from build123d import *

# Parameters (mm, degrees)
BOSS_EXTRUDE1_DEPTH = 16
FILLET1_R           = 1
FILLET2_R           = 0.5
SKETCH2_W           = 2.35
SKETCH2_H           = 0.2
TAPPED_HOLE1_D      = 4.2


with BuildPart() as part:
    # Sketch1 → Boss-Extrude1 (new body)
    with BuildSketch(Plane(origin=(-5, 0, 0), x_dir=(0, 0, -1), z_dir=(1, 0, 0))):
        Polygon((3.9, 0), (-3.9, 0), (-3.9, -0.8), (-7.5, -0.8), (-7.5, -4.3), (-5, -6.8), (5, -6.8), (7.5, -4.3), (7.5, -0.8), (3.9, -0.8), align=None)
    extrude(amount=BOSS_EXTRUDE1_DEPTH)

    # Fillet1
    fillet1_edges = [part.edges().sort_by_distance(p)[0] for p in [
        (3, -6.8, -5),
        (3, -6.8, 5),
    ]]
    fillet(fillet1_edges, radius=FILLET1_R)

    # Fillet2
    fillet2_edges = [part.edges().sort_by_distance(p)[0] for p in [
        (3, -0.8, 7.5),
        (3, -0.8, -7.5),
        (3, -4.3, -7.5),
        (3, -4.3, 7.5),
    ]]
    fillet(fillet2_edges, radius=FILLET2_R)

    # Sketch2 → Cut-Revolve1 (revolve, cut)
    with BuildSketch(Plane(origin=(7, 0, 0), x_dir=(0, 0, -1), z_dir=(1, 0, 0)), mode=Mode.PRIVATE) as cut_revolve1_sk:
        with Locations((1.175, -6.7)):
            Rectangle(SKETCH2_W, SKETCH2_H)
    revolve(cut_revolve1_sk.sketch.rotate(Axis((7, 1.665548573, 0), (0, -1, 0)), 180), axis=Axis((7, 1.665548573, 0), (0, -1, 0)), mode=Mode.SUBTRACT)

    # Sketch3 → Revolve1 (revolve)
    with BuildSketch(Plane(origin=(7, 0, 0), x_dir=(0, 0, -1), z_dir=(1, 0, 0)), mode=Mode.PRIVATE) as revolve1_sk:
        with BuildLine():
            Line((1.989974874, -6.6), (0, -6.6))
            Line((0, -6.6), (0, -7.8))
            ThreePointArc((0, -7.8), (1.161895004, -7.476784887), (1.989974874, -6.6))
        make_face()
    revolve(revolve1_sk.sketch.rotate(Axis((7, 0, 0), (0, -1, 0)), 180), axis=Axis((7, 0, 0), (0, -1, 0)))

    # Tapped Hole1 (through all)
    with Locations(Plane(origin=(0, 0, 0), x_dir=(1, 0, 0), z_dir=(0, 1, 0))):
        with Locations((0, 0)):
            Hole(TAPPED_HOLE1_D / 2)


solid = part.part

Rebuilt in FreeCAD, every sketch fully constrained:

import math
import FreeCAD as App
import Part
import Sketcher
from FreeCAD import Vector
Q = App.Units.Quantity


def edges_at(feature, points):
    """Names of the edges that pass closest to the given points."""
    edges = feature.Shape.Edges
    near = lambda p: min(range(len(edges)), key=lambda i: edges[i].distToShape(Part.Vertex(*p))[0])
    return sorted({f"Edge{near(p) + 1}" for p in points})


def add_polygon(sketch, points):
    """Adds a closed chain of lines whose ends are joined by coincident constraints."""
    first, n = sketch.GeometryCount, len(points)
    for a, b in zip(points, points[1:] + points[:1]):
        sketch.addGeometry(Part.LineSegment(App.Vector(*a, 0), App.Vector(*b, 0)), False)
    for i in range(n):
        sketch.addConstraint(Sketcher.Constraint("Coincident", first + i, 2, first + (i + 1) % n, 1))

doc = App.newDocument("Part")
params = doc.addObject("Spreadsheet::Sheet", "Params")
for row, (alias, value) in enumerate([
    ("sketch1_height", "10 mm"),
    ("sketch1_width", "0.8 mm"),
    ("sketch1_width2", "3.5 mm"),
    ("sketch1_height2", "7.8 mm"),
    ("sketch1_height3", "3.6 mm"),
    ("pad1_length", "16 mm"),
    ("fillet_radius", "1 mm"),
    ("fillet2_radius", "0.5 mm"),
    ("sketch2_width", "0.2 mm"),
    ("sketch2_height", "2.35 mm"),
    ("groove_angle", "360 deg"),
    ("sketch3_radius", "2.25 mm"),
    ("sketch3_width", "1.2 mm"),
    ("revolution_angle", "360 deg"),
    ("sketch4_diameter", "4.2 mm"),
    ("hole_diameter", "4.2 mm"),
], start=1):
    params.set(f"A{row}", alias)
    params.set(f"B{row}", "=" + value)
    params.setAlias(f"B{row}", alias)

body = doc.addObject("PartDesign::Body", "Body")

# Sketch on YZ plane
sketch1 = doc.addObject("Sketcher::SketchObject", "Sketch")
body.addObject(sketch1)
sketch1.AttachmentSupport = (doc.YZ_Plane, [""])
sketch1.MapMode = "FlatFace"
sketch1.AttachmentOffset = App.Placement(Vector(0, 0, -5), App.Rotation())
add_polygon(sketch1, [(0, -3.9), (0, 3.9), (-0.8, 3.9), (-0.8, 7.5), (-4.3, 7.5), (-6.8, 5), (-6.8, -5), (-4.3, -7.5), (-0.8, -7.5), (-0.8, -3.9)])  # lines 0-9
sketch1.addConstraint([
    Sketcher.Constraint("Vertical", 0),
    Sketcher.Constraint("Horizontal", 1),
    Sketcher.Constraint("Vertical", 2),
    Sketcher.Constraint("Horizontal", 3),
    Sketcher.Constraint("Vertical", 5),
    Sketcher.Constraint("Horizontal", 7),
    Sketcher.Constraint("Vertical", 8),
    Sketcher.Constraint("Horizontal", 9),
    Sketcher.Constraint("Symmetric", 0, 2, 9, 2, -1, 1),
    Sketcher.Constraint("Symmetric", 3, 2, 6, 2, -1),
    Sketcher.Constraint("Perpendicular", 4, 6),
    Sketcher.Constraint("Vertical", 2, 2, 7, 2),
    Sketcher.Constraint("Equal", 4, 6),
    Sketcher.Constraint("DistanceY", 5, 2, 5, 1, Q("10 mm")),
    Sketcher.Constraint("DistanceX", 1, 2, 1, 1, Q("0.8 mm")),
    Sketcher.Constraint("DistanceX", 3, 2, 3, 1, Q("3.5 mm")),
    Sketcher.Constraint("DistanceY", 0, 1, 0, 2, Q("7.8 mm")),
    Sketcher.Constraint("DistanceY", 2, 1, 2, 2, Q("3.6 mm")),
])
sketch1.setExpression("Constraints[23]", "Params.sketch1_height")
sketch1.setExpression("Constraints[24]", "Params.sketch1_width")
sketch1.setExpression("Constraints[25]", "Params.sketch1_width2")
sketch1.setExpression("Constraints[26]", "Params.sketch1_height2")
sketch1.setExpression("Constraints[27]", "Params.sketch1_height3")
pad1 = doc.addObject("PartDesign::Pad", "Pad")
body.addObject(pad1)
pad1.Profile = sketch1
pad1.setExpression("Length", "Params.pad1_length")
doc.recompute()

fillet = doc.addObject("PartDesign::Fillet", "Fillet")
body.addObject(fillet)
fillet.Base = (pad1, edges_at(pad1, [(3, -6.8, -5), (3, -6.8, 5)]))
fillet.setExpression("Radius", "Params.fillet_radius")
doc.recompute()

fillet2 = doc.addObject("PartDesign::Fillet", "Fillet001")
body.addObject(fillet2)
fillet2.Base = (fillet, edges_at(fillet, [
    (3, -0.8, 7.5),
    (3, -0.8, -7.5),
    (3, -4.3, -7.5),
    (3, -4.3, 7.5),
]))
fillet2.setExpression("Radius", "Params.fillet2_radius")

# Sketch on YZ plane
sketch2 = doc.addObject("Sketcher::SketchObject", "Sketch001")
body.addObject(sketch2)
sketch2.AttachmentSupport = (doc.YZ_Plane, [""])
sketch2.MapMode = "FlatFace"
sketch2.AttachmentOffset = App.Placement(Vector(0, 0, 7), App.Rotation())
add_polygon(sketch2, [(-6.6, 0), (-6.8, 0), (-6.8, -2.35), (-6.6, -2.35)])  # lines 0-3
sketch2.addConstraint([
    Sketcher.Constraint("Horizontal", 0),
    Sketcher.Constraint("Vertical", 1),
    Sketcher.Constraint("Horizontal", 2),
    Sketcher.Constraint("Vertical", 3),
    Sketcher.Constraint("PointOnObject", 0, 2, -1),
    Sketcher.Constraint("DistanceX", 0, 2, 0, 1, Q("0.2 mm")),
    Sketcher.Constraint("DistanceY", 1, 2, 1, 1, Q("2.35 mm")),
    Sketcher.Constraint("DistanceX", 0, 2, -1, 1, Q("6.8 mm")),
])
sketch2.setExpression("Constraints[9]", "Params.sketch2_width")
sketch2.setExpression("Constraints[10]", "Params.sketch2_height")
groove = doc.addObject("PartDesign::Groove", "Groove")
body.addObject(groove)
groove.Profile = sketch2
groove.ReferenceAxis = (sketch2, ["H_Axis"])
groove.setExpression("Angle", "Params.groove_angle")

# Sketch on YZ plane
sketch3 = doc.addObject("Sketcher::SketchObject", "Sketch002")
body.addObject(sketch3)
sketch3.AttachmentSupport = (doc.YZ_Plane, [""])
sketch3.MapMode = "FlatFace"
sketch3.AttachmentOffset = App.Placement(Vector(0, 0, 7), App.Rotation())
sketch3.addGeometry([
    Part.LineSegment(Vector(-6.6, -1.989975, 0), Vector(-6.6, 0, 0)),
    Part.LineSegment(Vector(-6.6, 0, 0), Vector(-7.8, 0, 0)),
    Part.ArcOfCircle(Part.Circle(Vector(-5.55, 0, 0), Vector(0, 0, 1), 2.25), math.radians(180), math.radians(242.181861)),
], False)
sketch3.addConstraint([
    Sketcher.Constraint("Coincident", 0, 2, 1, 1),
    Sketcher.Constraint("Coincident", 1, 2, 2, 1),
    Sketcher.Constraint("Coincident", 2, 2, 0, 1),
    Sketcher.Constraint("Vertical", 0),
    Sketcher.Constraint("Horizontal", 1),
    Sketcher.Constraint("PointOnObject", 2, 3, -1),
    Sketcher.Constraint("PointOnObject", 0, 2, -1),
    Sketcher.Constraint("Radius", 2, Q("2.25 mm")),
    Sketcher.Constraint("DistanceX", 1, 2, 1, 1, Q("1.2 mm")),
    Sketcher.Constraint("DistanceX", 0, 2, -1, 1, Q("6.6 mm")),
])
sketch3.setExpression("Constraints[7]", "Params.sketch3_radius")
sketch3.setExpression("Constraints[8]", "Params.sketch3_width")
revolution = doc.addObject("PartDesign::Revolution", "Revolution")
body.addObject(revolution)
revolution.Profile = sketch3
revolution.ReferenceAxis = (sketch3, ["H_Axis"])
revolution.setExpression("Angle", "Params.revolution_angle")

# Sketch on XZ plane
sketch4 = doc.addObject("Sketcher::SketchObject", "Sketch003")
body.addObject(sketch4)
sketch4.AttachmentSupport = (doc.XZ_Plane, [""])
sketch4.MapMode = "FlatFace"
sketch4.addGeometry(Part.Circle(Vector(0, 0, 0), Vector(0, 0, 1), 2.1), False)
sketch4.addConstraint([
    Sketcher.Constraint("Coincident", 0, 3, -1, 1),
    Sketcher.Constraint("Diameter", 0, Q("4.2 mm")),
])
sketch4.setExpression("Constraints[1]", "Params.sketch4_diameter")
doc.recompute()
hole = doc.addObject("PartDesign::Hole", "Hole")
body.addObject(hole)
hole.Profile = sketch4
hole.ThreadType = "None"
hole.setExpression("Diameter", "Params.hole_diameter")
hole.DepthType = "ThroughAll"
hole.Reversed = True

doc.recompute()
